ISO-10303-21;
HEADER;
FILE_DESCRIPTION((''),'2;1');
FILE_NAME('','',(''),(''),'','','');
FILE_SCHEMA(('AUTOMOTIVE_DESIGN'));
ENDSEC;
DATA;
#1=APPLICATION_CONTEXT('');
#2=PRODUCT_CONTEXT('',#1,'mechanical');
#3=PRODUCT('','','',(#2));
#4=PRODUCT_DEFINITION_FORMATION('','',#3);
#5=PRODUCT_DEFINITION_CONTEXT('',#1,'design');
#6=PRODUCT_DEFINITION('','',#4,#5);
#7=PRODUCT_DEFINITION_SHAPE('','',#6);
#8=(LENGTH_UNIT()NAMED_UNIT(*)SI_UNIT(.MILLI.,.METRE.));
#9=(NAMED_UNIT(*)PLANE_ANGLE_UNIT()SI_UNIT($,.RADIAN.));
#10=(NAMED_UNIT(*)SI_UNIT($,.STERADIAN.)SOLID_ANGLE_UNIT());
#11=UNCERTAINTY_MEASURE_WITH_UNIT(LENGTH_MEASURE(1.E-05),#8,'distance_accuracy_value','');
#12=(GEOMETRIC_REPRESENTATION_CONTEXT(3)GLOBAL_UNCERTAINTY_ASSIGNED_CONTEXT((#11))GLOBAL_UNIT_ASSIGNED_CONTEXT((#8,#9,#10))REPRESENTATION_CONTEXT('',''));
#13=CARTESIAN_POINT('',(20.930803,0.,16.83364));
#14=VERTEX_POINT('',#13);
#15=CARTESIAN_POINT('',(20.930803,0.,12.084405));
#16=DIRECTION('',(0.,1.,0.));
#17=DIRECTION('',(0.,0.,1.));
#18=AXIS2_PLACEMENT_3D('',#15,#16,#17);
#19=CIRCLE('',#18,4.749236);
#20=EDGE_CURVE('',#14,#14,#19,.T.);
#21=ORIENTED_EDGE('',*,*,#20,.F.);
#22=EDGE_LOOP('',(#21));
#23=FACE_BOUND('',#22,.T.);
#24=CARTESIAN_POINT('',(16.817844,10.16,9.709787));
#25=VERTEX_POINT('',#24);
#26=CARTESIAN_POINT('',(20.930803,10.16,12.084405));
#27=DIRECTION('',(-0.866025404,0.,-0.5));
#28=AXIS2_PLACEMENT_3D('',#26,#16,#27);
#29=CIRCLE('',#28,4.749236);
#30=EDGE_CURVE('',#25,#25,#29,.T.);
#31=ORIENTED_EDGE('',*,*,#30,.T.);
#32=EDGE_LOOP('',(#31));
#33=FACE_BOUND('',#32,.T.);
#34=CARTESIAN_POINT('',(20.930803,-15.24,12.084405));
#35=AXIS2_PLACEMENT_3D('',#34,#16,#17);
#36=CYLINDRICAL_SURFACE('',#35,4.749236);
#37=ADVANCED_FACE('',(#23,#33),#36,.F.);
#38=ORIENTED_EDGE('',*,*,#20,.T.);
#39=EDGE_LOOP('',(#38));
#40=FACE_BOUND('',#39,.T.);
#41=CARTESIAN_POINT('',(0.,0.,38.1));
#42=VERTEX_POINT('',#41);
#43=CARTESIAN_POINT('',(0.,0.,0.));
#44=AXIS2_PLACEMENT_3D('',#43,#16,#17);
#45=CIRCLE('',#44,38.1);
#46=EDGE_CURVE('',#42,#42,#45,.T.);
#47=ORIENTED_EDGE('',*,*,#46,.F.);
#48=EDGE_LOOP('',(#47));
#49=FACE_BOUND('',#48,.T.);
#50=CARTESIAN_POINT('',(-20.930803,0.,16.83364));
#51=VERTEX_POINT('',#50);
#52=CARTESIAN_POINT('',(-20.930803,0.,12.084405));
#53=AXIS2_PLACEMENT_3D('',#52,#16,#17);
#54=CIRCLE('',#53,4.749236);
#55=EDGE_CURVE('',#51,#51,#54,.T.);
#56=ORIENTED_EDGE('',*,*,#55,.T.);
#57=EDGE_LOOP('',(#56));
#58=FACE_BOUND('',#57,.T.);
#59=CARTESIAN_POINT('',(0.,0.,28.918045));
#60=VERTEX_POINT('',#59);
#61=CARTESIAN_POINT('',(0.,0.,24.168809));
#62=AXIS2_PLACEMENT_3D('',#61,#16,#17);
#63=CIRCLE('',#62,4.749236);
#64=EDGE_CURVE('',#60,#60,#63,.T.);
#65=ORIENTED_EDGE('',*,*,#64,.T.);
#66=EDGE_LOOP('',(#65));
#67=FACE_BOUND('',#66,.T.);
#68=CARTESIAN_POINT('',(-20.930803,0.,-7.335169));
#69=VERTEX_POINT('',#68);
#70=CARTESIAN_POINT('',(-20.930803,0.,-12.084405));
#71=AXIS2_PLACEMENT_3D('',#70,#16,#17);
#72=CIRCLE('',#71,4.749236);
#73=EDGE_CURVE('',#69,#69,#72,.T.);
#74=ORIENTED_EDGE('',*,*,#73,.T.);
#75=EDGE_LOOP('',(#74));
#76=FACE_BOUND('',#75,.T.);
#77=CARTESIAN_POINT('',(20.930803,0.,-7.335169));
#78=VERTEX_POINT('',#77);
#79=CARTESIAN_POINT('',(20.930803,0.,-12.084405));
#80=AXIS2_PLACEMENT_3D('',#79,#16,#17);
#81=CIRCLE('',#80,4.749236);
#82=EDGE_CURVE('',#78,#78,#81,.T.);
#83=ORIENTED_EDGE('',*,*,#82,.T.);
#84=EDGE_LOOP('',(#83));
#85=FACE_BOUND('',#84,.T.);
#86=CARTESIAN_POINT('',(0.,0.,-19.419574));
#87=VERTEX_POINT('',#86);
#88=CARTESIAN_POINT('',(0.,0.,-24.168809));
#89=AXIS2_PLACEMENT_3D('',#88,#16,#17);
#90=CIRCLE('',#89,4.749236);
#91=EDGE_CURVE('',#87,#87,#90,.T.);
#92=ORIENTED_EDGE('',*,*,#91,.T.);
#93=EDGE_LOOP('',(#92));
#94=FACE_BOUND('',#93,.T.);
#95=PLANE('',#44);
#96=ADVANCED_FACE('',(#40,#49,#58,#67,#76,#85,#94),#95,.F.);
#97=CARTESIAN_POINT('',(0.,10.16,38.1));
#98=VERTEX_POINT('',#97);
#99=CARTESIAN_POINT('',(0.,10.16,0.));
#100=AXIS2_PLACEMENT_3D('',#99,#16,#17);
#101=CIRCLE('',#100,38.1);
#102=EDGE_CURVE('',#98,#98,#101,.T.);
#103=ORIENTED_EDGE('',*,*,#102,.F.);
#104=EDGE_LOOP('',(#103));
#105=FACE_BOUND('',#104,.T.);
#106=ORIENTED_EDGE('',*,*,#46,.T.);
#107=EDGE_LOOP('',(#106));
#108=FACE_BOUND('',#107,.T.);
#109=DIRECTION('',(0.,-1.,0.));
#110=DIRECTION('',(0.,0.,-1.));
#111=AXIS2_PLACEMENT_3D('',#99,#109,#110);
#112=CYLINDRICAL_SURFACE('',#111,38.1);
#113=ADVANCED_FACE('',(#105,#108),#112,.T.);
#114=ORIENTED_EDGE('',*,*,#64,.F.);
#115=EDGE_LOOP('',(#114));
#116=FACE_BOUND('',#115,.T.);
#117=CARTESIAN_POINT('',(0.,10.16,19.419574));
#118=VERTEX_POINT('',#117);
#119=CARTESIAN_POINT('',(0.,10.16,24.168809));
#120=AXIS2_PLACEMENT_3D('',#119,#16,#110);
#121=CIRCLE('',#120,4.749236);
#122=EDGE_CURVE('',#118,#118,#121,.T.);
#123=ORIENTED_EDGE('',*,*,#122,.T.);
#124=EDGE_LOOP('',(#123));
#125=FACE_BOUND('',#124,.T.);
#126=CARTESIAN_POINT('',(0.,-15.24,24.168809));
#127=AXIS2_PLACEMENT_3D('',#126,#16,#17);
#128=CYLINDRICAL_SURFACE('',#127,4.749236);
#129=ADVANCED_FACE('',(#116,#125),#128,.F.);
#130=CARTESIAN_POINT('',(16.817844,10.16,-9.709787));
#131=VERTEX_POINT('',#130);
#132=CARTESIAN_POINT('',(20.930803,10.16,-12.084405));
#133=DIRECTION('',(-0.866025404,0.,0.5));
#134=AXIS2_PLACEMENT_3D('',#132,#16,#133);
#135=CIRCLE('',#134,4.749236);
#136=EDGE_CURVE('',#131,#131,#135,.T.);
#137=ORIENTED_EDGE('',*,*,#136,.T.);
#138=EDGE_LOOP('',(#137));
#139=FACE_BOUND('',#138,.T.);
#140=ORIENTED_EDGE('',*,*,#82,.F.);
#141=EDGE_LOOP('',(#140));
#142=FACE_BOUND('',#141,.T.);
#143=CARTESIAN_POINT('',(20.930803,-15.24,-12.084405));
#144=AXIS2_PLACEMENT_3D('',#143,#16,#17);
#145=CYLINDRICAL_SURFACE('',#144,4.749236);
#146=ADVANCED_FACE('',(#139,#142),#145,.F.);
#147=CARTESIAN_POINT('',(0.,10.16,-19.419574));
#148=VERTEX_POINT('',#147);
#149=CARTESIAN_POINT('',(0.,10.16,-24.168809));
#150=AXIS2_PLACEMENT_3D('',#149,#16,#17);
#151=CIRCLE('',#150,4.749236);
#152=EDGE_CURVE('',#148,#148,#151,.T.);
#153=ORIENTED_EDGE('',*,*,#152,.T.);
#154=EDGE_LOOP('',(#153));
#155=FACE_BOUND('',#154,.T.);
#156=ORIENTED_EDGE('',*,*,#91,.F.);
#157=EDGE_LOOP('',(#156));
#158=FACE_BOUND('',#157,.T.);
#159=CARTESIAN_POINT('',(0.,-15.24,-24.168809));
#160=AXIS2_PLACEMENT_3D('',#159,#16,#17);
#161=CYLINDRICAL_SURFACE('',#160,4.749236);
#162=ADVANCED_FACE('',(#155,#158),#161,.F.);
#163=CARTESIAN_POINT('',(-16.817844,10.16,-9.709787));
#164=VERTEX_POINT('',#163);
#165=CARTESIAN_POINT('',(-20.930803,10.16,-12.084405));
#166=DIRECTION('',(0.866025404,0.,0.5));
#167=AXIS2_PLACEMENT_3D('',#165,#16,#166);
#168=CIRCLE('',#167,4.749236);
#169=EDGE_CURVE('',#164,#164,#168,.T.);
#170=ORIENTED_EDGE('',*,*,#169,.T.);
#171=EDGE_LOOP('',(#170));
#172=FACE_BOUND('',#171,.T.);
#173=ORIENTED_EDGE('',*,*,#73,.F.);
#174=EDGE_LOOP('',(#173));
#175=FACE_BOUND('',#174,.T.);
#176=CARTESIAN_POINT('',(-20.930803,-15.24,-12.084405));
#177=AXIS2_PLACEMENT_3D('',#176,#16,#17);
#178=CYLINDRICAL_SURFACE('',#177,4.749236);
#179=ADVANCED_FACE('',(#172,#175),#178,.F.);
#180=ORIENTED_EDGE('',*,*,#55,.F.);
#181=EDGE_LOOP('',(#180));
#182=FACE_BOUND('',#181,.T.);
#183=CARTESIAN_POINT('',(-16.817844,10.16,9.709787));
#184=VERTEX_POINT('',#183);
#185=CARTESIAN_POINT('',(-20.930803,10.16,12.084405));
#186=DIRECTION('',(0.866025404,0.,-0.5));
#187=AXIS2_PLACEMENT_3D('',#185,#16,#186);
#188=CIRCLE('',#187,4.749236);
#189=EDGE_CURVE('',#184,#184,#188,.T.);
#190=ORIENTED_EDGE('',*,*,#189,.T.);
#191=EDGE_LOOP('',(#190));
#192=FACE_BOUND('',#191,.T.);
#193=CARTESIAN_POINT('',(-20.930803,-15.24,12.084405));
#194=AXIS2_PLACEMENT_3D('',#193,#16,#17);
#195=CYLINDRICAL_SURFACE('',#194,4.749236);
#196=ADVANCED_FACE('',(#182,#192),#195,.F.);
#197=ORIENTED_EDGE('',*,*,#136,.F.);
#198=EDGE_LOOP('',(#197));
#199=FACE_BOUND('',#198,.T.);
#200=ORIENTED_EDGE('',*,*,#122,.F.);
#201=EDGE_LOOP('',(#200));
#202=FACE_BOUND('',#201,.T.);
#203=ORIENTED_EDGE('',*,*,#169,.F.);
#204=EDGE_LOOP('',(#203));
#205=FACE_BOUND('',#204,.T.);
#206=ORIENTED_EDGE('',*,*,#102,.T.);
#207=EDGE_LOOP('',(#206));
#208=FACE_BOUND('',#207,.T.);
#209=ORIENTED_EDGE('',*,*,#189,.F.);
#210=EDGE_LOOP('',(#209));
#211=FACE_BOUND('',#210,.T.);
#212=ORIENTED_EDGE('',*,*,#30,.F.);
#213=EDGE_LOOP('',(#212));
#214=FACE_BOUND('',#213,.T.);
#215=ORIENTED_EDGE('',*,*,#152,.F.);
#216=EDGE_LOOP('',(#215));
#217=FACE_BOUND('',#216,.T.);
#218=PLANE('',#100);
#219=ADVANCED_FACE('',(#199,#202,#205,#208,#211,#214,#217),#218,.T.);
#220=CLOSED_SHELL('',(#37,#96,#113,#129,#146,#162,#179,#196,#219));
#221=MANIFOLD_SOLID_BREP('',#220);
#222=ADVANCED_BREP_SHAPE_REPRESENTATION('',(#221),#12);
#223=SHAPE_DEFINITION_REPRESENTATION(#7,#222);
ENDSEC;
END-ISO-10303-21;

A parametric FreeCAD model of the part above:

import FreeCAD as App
import Part
import Sketcher

V = App.Vector
Q = App.Units.Quantity

doc = App.newDocument("Part")
body = doc.addObject("PartDesign::Body", "Body")

# Sketch on XZ plane
sketch1 = doc.addObject("Sketcher::SketchObject", "Sketch")
body.addObject(sketch1)
sketch1.AttachmentSupport = (doc.XZ_Plane, [""])
sketch1.MapMode = "FlatFace"
sketch1.addGeometry(Part.Circle(V(0, 0, 0), V(0, 0, 1), 38), False)
sketch1.addConstraint([
    Sketcher.Constraint("Coincident", 0, 3, -1, 1),
    Sketcher.Constraint("Diameter", 0, Q("3 in")),
])
pad1 = doc.addObject("PartDesign::Pad", "Pad")
body.addObject(pad1)
pad1.Profile = sketch1
pad1.Length = Q("0.4 in")
pad1.Reversed = True

# Sketch on XZ plane
sketch2 = doc.addObject("Sketcher::SketchObject", "Sketch001")
body.addObject(sketch2)
sketch2.AttachmentSupport = (doc.XZ_Plane, [""])
sketch2.MapMode = "FlatFace"
sketch2.AttachmentOffset = App.Placement(V(0, 0, -0.4 * 25.4), App.Rotation())
sketch2.addGeometry(Part.Circle(V(0, -24.2, 0), V(0, 0, 1), 4.7), False)
sketch2.addConstraint([
    Sketcher.Constraint("PointOnObject", 0, 3, -2),
    Sketcher.Constraint("Diameter", 0, Q("9.498471 mm")),
    Sketcher.Constraint("DistanceY", 0, 3, -1, 1, Q("24.168809 mm")),
])
pocket1 = doc.addObject("PartDesign::Pocket", "Pocket")
body.addObject(pocket1)
pocket1.Profile = sketch2
pocket1.Length = Q("1 in")
pocket1.Reversed = True
doc.recompute()

polarpattern = doc.addObject("PartDesign::PolarPattern", "PolarPattern")
body.addObject(polarpattern)
polarpattern.Originals = [pocket1]
polarpattern.Axis = (doc.Y_Axis, [""])
polarpattern.Angle = 360
polarpattern.Occurrences = 6
body.Tip = polarpattern

doc.recompute()
